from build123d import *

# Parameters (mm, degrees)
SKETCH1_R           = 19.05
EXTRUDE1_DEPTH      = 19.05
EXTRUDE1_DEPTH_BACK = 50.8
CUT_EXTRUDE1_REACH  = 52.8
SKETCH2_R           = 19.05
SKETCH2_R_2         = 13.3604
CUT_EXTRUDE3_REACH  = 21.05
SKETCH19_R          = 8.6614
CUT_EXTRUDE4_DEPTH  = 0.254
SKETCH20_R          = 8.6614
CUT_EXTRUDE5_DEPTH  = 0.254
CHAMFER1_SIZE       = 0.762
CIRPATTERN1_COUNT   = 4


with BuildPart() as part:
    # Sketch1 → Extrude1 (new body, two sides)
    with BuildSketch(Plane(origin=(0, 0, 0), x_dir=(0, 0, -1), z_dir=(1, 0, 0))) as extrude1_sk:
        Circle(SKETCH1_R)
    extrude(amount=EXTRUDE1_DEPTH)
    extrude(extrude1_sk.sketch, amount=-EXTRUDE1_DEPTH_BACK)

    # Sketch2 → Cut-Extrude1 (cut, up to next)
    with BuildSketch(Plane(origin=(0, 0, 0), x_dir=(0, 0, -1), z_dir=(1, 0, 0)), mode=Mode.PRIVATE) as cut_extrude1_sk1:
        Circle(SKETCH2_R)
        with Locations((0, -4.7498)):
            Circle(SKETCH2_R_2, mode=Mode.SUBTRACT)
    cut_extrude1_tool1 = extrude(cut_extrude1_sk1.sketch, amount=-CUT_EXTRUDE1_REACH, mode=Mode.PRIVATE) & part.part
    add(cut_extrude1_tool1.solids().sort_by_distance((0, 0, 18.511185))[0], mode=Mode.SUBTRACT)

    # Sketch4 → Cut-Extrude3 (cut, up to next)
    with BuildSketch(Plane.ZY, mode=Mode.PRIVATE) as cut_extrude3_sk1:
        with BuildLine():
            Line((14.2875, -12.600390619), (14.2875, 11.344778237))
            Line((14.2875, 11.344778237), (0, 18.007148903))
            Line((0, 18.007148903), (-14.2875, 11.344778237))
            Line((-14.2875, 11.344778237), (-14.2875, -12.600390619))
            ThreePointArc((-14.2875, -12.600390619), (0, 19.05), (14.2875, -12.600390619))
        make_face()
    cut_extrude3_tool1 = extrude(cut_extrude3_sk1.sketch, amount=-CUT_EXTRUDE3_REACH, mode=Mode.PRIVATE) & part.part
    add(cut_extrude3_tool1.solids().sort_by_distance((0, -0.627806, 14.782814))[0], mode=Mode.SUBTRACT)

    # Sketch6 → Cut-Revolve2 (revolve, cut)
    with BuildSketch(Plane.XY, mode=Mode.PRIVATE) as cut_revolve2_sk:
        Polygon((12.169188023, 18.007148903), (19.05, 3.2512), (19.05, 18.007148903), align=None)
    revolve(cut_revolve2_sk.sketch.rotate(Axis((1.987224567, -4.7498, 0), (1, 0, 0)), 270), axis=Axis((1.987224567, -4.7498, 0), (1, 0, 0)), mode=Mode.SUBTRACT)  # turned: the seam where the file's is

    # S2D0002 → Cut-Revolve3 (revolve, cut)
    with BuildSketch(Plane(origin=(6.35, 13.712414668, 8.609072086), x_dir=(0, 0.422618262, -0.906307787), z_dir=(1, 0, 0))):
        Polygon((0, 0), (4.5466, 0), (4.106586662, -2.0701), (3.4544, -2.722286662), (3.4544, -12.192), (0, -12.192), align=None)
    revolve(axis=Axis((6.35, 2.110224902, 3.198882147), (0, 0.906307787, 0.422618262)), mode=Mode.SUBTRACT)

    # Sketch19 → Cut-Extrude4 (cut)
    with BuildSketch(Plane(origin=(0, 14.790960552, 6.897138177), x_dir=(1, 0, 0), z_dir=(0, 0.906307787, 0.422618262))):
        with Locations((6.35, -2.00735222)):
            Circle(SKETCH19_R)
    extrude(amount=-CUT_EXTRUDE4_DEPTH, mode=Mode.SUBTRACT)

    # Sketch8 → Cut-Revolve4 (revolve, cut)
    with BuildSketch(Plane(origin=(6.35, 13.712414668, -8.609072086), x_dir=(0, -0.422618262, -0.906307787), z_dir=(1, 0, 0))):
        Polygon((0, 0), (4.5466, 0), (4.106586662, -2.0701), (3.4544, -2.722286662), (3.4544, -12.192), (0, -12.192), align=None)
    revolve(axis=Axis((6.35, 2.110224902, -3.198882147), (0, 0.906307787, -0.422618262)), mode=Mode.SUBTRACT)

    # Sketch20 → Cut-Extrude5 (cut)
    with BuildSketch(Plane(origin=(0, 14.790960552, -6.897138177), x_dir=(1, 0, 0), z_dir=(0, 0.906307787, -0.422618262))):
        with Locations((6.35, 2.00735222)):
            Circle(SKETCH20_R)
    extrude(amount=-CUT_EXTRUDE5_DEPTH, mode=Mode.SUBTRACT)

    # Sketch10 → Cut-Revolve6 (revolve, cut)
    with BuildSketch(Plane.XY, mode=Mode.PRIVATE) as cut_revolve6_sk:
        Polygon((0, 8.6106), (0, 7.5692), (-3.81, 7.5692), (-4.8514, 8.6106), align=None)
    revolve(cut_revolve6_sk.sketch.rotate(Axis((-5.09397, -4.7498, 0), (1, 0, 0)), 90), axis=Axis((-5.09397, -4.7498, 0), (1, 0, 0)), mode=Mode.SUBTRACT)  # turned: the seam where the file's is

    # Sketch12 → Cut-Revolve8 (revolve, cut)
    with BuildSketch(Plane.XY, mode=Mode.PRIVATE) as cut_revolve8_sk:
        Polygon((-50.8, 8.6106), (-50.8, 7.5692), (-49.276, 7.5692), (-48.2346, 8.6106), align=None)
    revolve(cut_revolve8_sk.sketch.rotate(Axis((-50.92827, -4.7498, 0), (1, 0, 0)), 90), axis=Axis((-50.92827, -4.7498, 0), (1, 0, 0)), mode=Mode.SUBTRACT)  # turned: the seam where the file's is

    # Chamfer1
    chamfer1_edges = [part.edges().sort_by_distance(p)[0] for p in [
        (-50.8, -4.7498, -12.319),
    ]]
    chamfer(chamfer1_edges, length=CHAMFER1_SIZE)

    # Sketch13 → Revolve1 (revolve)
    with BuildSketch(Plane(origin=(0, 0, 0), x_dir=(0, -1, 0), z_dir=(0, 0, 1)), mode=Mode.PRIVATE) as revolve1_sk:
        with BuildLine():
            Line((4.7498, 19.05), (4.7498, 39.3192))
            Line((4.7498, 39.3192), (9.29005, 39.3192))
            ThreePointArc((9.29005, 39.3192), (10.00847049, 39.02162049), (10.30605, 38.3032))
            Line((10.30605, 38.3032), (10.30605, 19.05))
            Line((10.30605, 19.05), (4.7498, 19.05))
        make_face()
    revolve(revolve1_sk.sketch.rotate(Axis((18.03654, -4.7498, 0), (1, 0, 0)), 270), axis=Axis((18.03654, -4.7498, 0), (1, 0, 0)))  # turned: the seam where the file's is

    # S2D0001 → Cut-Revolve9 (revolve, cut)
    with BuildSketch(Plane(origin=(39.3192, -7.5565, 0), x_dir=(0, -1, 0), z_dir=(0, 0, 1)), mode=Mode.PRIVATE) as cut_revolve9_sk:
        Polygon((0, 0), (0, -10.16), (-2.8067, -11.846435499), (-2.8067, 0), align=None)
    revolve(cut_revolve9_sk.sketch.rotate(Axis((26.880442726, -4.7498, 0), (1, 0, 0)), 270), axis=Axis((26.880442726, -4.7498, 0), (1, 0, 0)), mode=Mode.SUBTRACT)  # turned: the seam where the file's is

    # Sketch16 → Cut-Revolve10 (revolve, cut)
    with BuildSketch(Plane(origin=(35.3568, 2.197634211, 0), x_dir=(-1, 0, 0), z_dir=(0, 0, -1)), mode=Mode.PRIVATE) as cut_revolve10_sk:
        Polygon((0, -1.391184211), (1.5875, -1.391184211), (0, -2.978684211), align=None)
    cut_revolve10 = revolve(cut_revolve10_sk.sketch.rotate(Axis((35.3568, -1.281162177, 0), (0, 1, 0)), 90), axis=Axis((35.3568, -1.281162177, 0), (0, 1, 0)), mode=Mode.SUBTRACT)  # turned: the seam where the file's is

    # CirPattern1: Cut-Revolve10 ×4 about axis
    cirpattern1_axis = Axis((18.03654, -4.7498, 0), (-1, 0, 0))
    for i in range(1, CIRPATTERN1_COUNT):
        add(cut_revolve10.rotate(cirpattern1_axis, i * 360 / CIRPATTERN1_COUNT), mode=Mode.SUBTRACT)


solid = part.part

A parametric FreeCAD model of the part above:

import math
import FreeCAD as App
import Part
import Sketcher
Q = App.Units.Quantity


def edges_at(feature, points):
    """Names of the edges that pass closest to the given points."""
    edges = feature.Shape.Edges
    near = lambda p: min(range(len(edges)), key=lambda i: edges[i].distToShape(Part.Vertex(*p))[0])
    return sorted({f"Edge{near(p) + 1}" for p in points})

doc = App.newDocument("Part")
body = doc.addObject("PartDesign::Body", "Body")

# Sketch on YZ plane
sketch1 = doc.addObject("Sketcher::SketchObject", "Sketch")
body.addObject(sketch1)
sketch1.AttachmentSupport = (doc.YZ_Plane, [""])
sketch1.MapMode = "FlatFace"
sketch1.addGeometry(Part.Circle(App.Vector(0, 0, 0), App.Vector(0, 0, 1), 19), False)
sketch1.addConstraint(Sketcher.Constraint("Coincident", 0, 3, -1, 1))
sketch1.addConstraint(Sketcher.Constraint("Diameter", 0, Q("1.5 in")))
pad1 = doc.addObject("PartDesign::Pad", "Pad")
body.addObject(pad1)
pad1.Profile = sketch1
pad1.Type = "TwoLengths"
pad1.Length = Q("0.75 in")
pad1.Length2 = Q("2 in")

# Sketch on YZ plane
sketch2 = doc.addObject("Sketcher::SketchObject", "Sketch001")
body.addObject(sketch2)
sketch2.AttachmentSupport = (doc.YZ_Plane, [""])
sketch2.MapMode = "FlatFace"
sketch2.addGeometry(Part.Circle(App.Vector(0, 0, 0), App.Vector(0, 0, 1), 19), False)
sketch2.addGeometry(Part.Circle(App.Vector(-5, 0, 0), App.Vector(0, 0, 1), 13), False)
sketch2.addConstraint(Sketcher.Constraint("Coincident", 0, 3, -1, 1))
sketch2.addConstraint(Sketcher.Constraint("PointOnObject", 1, 3, -1))
sketch2.addConstraint(Sketcher.Constraint("Diameter", 0, Q("1.5 in")))
sketch2.addConstraint(Sketcher.Constraint("Diameter", 1, Q("1.052 in")))
sketch2.addConstraint(Sketcher.Constraint("DistanceX", 1, 3, -1, 1, Q("0.187 in")))
pocket1 = doc.addObject("PartDesign::Pocket", "Pocket")
body.addObject(pocket1)
pocket1.Profile = sketch2
pocket1.Type = "UpToFirst"

# Sketch on YZ plane
sketch3 = doc.addObject("Sketcher::SketchObject", "Sketch002")
body.addObject(sketch3)
sketch3.AttachmentSupport = (doc.YZ_Plane, [""])
sketch3.MapMode = "FlatFace"
sketch3.addGeometry(Part.LineSegment(App.Vector(11, 14, 0), App.Vector(-13, 14, 0)), False)
sketch3.addGeometry(Part.ArcOfCircle(Part.Circle(App.Vector(0, 0, 0), App.Vector(0, 0, 1), 19), math.radians(-131), math.radians(131)), False)
sketch3.addGeometry(Part.LineSegment(App.Vector(-13, -14, 0), App.Vector(11, -14, 0)), False)
sketch3.addGeometry(Part.LineSegment(App.Vector(11, -14, 0), App.Vector(18, 0, 0)), False)
sketch3.addGeometry(Part.LineSegment(App.Vector(18, 0, 0), App.Vector(11, 14, 0)), False)
sketch3.addConstraint(Sketcher.Constraint("Coincident", 0, 2, 1, 2))
sketch3.addConstraint(Sketcher.Constraint("Coincident", 1, 1, 2, 1))
sketch3.addConstraint(Sketcher.Constraint("Coincident", 2, 2, 3, 1))
sketch3.addConstraint(Sketcher.Constraint("Coincident", 3, 2, 4, 1))
sketch3.addConstraint(Sketcher.Constraint("Coincident", 4, 2, 0, 1))
sketch3.addConstraint(Sketcher.Constraint("Horizontal", 0))
sketch3.addConstraint(Sketcher.Constraint("Horizontal", 2))
sketch3.addConstraint(Sketcher.Constraint("Coincident", 1, 3, -1, 1))
sketch3.addConstraint(Sketcher.Constraint("Symmetric", 2, 2, 4, 2, -1))
sketch3.addConstraint(Sketcher.Constraint("PointOnObject", 3, 2, -1))
sketch3.addConstraint(Sketcher.Constraint("Radius", 1, Q("0.75 in")))
sketch3.addConstraint(Sketcher.Constraint("Angle", 3, Q("65 deg")))
sketch3.addConstraint(Sketcher.Constraint("DistanceY", -1, 1, 0, 2, Q("0.5625 in")))
sketch3.addConstraint(Sketcher.Constraint("DistanceX", 0, 2, 0, 1, Q("23.945169 mm")))
pocket2 = doc.addObject("PartDesign::Pocket", "Pocket001")
body.addObject(pocket2)
pocket2.Profile = sketch3
pocket2.Type = "UpToFirst"
pocket2.Reversed = True

# Sketch on XY plane
sketch4 = doc.addObject("Sketcher::SketchObject", "Sketch003")
body.addObject(sketch4)
sketch4.AttachmentSupport = (doc.XY_Plane, [""])
sketch4.MapMode = "FlatFace"
sketch4.addGeometry(Part.LineSegment(App.Vector(12, 18, 0), App.Vector(19, 3, 0)), False)
sketch4.addGeometry(Part.LineSegment(App.Vector(19, 3, 0), App.Vector(19, 18, 0)), False)
sketch4.addGeometry(Part.LineSegment(App.Vector(19, 18, 0), App.Vector(12, 18, 0)), False)
sketch4.addGeometry(Part.LineSegment(App.Vector(12, -5, 0), App.Vector(19, -5, 0)), True)  # axis
sketch4.addConstraint(Sketcher.Constraint("Coincident", 0, 2, 1, 1))
sketch4.addConstraint(Sketcher.Constraint("Coincident", 1, 2, 2, 1))
sketch4.addConstraint(Sketcher.Constraint("Coincident", 2, 2, 0, 1))
sketch4.addConstraint(Sketcher.Constraint("Vertical", 1))
sketch4.addConstraint(Sketcher.Constraint("Horizontal", 2))
sketch4.addConstraint(Sketcher.Constraint("Horizontal", 3))
sketch4.addConstraint(Sketcher.Constraint("Vertical", 2, 2, 3, 1))
sketch4.addConstraint(Sketcher.Constraint("Vertical", 1, 2, 3, 2))
sketch4.addConstraint(Sketcher.Constraint("Angle", 0, Q("-65 deg")))
sketch4.addConstraint(Sketcher.Constraint("DistanceX", -1, 1, 0, 2, Q("0.75 in")))
sketch4.addConstraint(Sketcher.Constraint("DistanceY", -1, 1, 0, 2, Q("0.128 in")))
sketch4.addConstraint(Sketcher.Constraint("DistanceY", 3, 1, -1, 1, Q("0.187 in")))
sketch4.addConstraint(Sketcher.Constraint("DistanceX", 2, 2, 2, 1, Q("6.880812 mm")))
groove = doc.addObject("PartDesign::Groove", "Groove")
body.addObject(groove)
groove.Profile = sketch4
groove.ReferenceAxis = (sketch4, ["Axis0"])
groove.Angle = 360

# Sketch on YZ plane
sketch5 = doc.addObject("Sketcher::SketchObject", "Sketch004")
body.addObject(sketch5)
sketch5.AttachmentSupport = (doc.YZ_Plane, [""])
sketch5.MapMode = "FlatFace"
sketch5.AttachmentOffset = App.Placement(App.Vector(0, 0, 0.25 * 25.4), App.Rotation())
sketch5.addGeometry(Part.LineSegment(App.Vector(15.6, 4.5, 0), App.Vector(13.7, 8.6, 0)), False)
sketch5.addGeometry(Part.LineSegment(App.Vector(13.7, 8.6, 0), App.Vector(2.7, 3.5, 0)), False)
sketch5.addGeometry(Part.LineSegment(App.Vector(2.7, 3.5, 0), App.Vector(4.1, 0.3, 0)), False)
sketch5.addGeometry(Part.LineSegment(App.Vector(4.1, 0.3, 0), App.Vector(12.7, 4.3, 0)), False)
sketch5.addGeometry(Part.LineSegment(App.Vector(12.7, 4.3, 0), App.Vector(13.6, 4, 0)), False)
sketch5.addGeometry(Part.LineSegment(App.Vector(13.6, 4, 0), App.Vector(15.6, 4.5, 0)), False)
sketch5.addGeometry(Part.LineSegment(App.Vector(2.7, 3.5, 0), App.Vector(13.7, 8.6, 0)), True)  # axis
sketch5.addConstraint(Sketcher.Constraint("Coincident", 0, 2, 1, 1))
sketch5.addConstraint(Sketcher.Constraint("Coincident", 1, 2, 2, 1))
sketch5.addConstraint(Sketcher.Constraint("Coincident", 2, 2, 3, 1))
sketch5.addConstraint(Sketcher.Constraint("Coincident", 3, 2, 4, 1))
sketch5.addConstraint(Sketcher.Constraint("Coincident", 4, 2, 5, 1))
sketch5.addConstraint(Sketcher.Constraint("Coincident", 5, 2, 0, 1))
sketch5.addConstraint(Sketcher.Constraint("Coincident", 6, 1, 1, 2))
sketch5.addConstraint(Sketcher.Constraint("Coincident", 6, 2, 0, 2))
sketch5.addConstraint(Sketcher.Constraint("Perpendicular", 0, 1))
sketch5.addConstraint(Sketcher.Constraint("Perpendicular", 1, 2))
sketch5.addConstraint(Sketcher.Constraint("Perpendicular", 2, 3))
sketch5.addConstraint(Sketcher.Constraint("Angle", 0, Q("115 deg")))
sketch5.addConstraint(Sketcher.Constraint("Angle", 4, Q("-20 deg")))
sketch5.addConstraint(Sketcher.Constraint("Angle", 5, Q("13 deg")))
sketch5.addConstraint(Sketcher.Constraint("Distance", 1, Q("0.48 in")))
sketch5.addConstraint(Sketcher.Constraint("Distance", 0, Q("0.179 in")))
sketch5.addConstraint(Sketcher.Constraint("Distance", 2, Q("0.136 in")))
sketch5.addConstraint(Sketcher.Constraint("DistanceX", -1, 1, 3, 2, Q("0.5001999 in")))
sketch5.addConstraint(Sketcher.Constraint("Distance", 4, Q("0.922331 mm")))
sketch5.addConstraint(Sketcher.Constraint("DistanceY", -1, 1, 1, 2, Q("3.45651 mm")))
groove2 = doc.addObject("PartDesign::Groove", "Groove001")
body.addObject(groove2)
groove2.Profile = sketch5
groove2.ReferenceAxis = (sketch5, ["Axis0"])
groove2.Angle = 360

# Sketch on an angled plane
sketch6 = doc.addObject("Sketcher::SketchObject", "Sketch005")
body.addObject(sketch6)
sketch6.Placement = App.Placement(App.Vector(0, 14.790961, 6.897138), App.Rotation(App.Vector(1, 0, 0), App.Vector(0, 0.422618262, -0.906307787), App.Vector(0, 0.906307787, 0.422618262), "ZXY"))
sketch6.addGeometry(Part.Circle(App.Vector(6, -2, 0), App.Vector(0, 0, 1), 9), False)
sketch6.addConstraint(Sketcher.Constraint("Diameter", 0, Q("0.682 in")))
sketch6.addConstraint(Sketcher.Constraint("DistanceX", -1, 1, 0, 3, Q("0.25 in")))
sketch6.addConstraint(Sketcher.Constraint("DistanceY", 0, 3, -1, 1, Q("2.007352 mm")))
pocket3 = doc.addObject("PartDesign::Pocket", "Pocket002")
body.addObject(pocket3)
pocket3.Profile = sketch6
pocket3.Length = Q("0.01 in")

# Sketch on YZ plane
sketch7 = doc.addObject("Sketcher::SketchObject", "Sketch006")
body.addObject(sketch7)
sketch7.AttachmentSupport = (doc.YZ_Plane, [""])
sketch7.MapMode = "FlatFace"
sketch7.AttachmentOffset = App.Placement(App.Vector(0, 0, 0.25 * 25.4), App.Rotation())
sketch7.addGeometry(Part.LineSegment(App.Vector(11.8, -12.7, 0), App.Vector(13.7, -8.6, 0)), False)
sketch7.addGeometry(Part.LineSegment(App.Vector(13.7, -8.6, 0), App.Vector(2.7, -3.5, 0)), False)
sketch7.addGeometry(Part.LineSegment(App.Vector(2.7, -3.5, 0), App.Vector(1.2, -6.6, 0)), False)
sketch7.addGeometry(Part.LineSegment(App.Vector(1.2, -6.6, 0), App.Vector(9.8, -10.6, 0)), False)
sketch7.addGeometry(Part.LineSegment(App.Vector(9.8, -10.6, 0), App.Vector(10.1, -11.5, 0)), False)
sketch7.addGeometry(Part.LineSegment(App.Vector(10.1, -11.5, 0), App.Vector(11.8, -12.7, 0)), False)
sketch7.addGeometry(Part.LineSegment(App.Vector(2.7, -3.5, 0), App.Vector(13.7, -8.6, 0)), True)  # axis
sketch7.addConstraint(Sketcher.Constraint("Coincident", 0, 2, 1, 1))
sketch7.addConstraint(Sketcher.Constraint("Coincident", 1, 2, 2, 1))
sketch7.addConstraint(Sketcher.Constraint("Coincident", 2, 2, 3, 1))
sketch7.addConstraint(Sketcher.Constraint("Coincident", 3, 2, 4, 1))
sketch7.addConstraint(Sketcher.Constraint("Coincident", 4, 2, 5, 1))
sketch7.addConstraint(Sketcher.Constraint("Coincident", 5, 2, 0, 1))
sketch7.addConstraint(Sketcher.Constraint("Coincident", 6, 1, 1, 2))
sketch7.addConstraint(Sketcher.Constraint("Coincident", 6, 2, 0, 2))
sketch7.addConstraint(Sketcher.Constraint("Perpendicular", 0, 1))
sketch7.addConstraint(Sketcher.Constraint("Perpendicular", 1, 2))
sketch7.addConstraint(Sketcher.Constraint("Perpendicular", 2, 3))
sketch7.addConstraint(Sketcher.Constraint("Angle", 0, Q("65 deg")))
sketch7.addConstraint(Sketcher.Constraint("Angle", 4, Q("-70 deg")))
sketch7.addConstraint(Sketcher.Constraint("Angle", 5, Q("-37 deg")))
sketch7.addConstraint(Sketcher.Constraint("Distance", 1, Q("0.48 in")))
sketch7.addConstraint(Sketcher.Constraint("Distance", 0, Q("0.179 in")))
sketch7.addConstraint(Sketcher.Constraint("Distance", 2, Q("0.136 in")))
sketch7.addConstraint(Sketcher.Constraint("Distance", 4, Q("0.922331 mm")))
sketch7.addConstraint(Sketcher.Constraint("DistanceX", -1, 1, 1, 2, Q("2.66271 mm")))
sketch7.addConstraint(Sketcher.Constraint("DistanceY", 1, 2, -1, 1, Q("3.45651 mm")))
groove3 = doc.addObject("PartDesign::Groove", "Groove002")
body.addObject(groove3)
groove3.Profile = sketch7
groove3.ReferenceAxis = (sketch7, ["Axis0"])
groove3.Angle = 360

# Sketch on an angled plane
sketch8 = doc.addObject("Sketcher::SketchObject", "Sketch007")
body.addObject(sketch8)
sketch8.Placement = App.Placement(App.Vector(0, 14.790961, -6.897138), App.Rotation(App.Vector(1, 0, 0), App.Vector(0, -0.422618262, -0.906307787), App.Vector(0, 0.906307787, -0.422618262), "ZXY"))
sketch8.addGeometry(Part.Circle(App.Vector(6, 2, 0), App.Vector(0, 0, 1), 9), False)
sketch8.addConstraint(Sketcher.Constraint("Diameter", 0, Q("0.682 in")))
sketch8.addConstraint(Sketcher.Constraint("DistanceX", -1, 1, 0, 3, Q("0.25 in")))
sketch8.addConstraint(Sketcher.Constraint("DistanceY", -1, 1, 0, 3, Q("2.007352 mm")))
pocket4 = doc.addObject("PartDesign::Pocket", "Pocket003")
body.addObject(pocket4)
pocket4.Profile = sketch8
pocket4.Length = Q("0.01 in")

# Sketch on XY plane
sketch9 = doc.addObject("Sketcher::SketchObject", "Sketch008")
body.addObject(sketch9)
sketch9.AttachmentSupport = (doc.XY_Plane, [""])
sketch9.MapMode = "FlatFace"
sketch9.addGeometry(Part.LineSegment(App.Vector(0, 7.6, 0), App.Vector(0, 8.6, 0)), False)
sketch9.addGeometry(Part.LineSegment(App.Vector(0, 8.6, 0), App.Vector(-4.9, 8.6, 0)), False)
sketch9.addGeometry(Part.LineSegment(App.Vector(-4.9, 8.6, 0), App.Vector(-3.8, 7.6, 0)), False)
sketch9.addGeometry(Part.LineSegment(App.Vector(-3.8, 7.6, 0), App.Vector(0, 7.6, 0)), False)
sketch9.addGeometry(Part.LineSegment(App.Vector(-4.9, -4.7, 0), App.Vector(0, -4.7, 0)), True)  # axis
sketch9.addConstraint(Sketcher.Constraint("Coincident", 0, 2, 1, 1))
sketch9.addConstraint(Sketcher.Constraint("Coincident", 1, 2, 2, 1))
sketch9.addConstraint(Sketcher.Constraint("Coincident", 2, 2, 3, 1))
sketch9.addConstraint(Sketcher.Constraint("Coincident", 3, 2, 0, 1))
sketch9.addConstraint(Sketcher.Constraint("Vertical", 0))
sketch9.addConstraint(Sketcher.Constraint("Horizontal", 1))
sketch9.addConstraint(Sketcher.Constraint("Horizontal", 3))
sketch9.addConstraint(Sketcher.Constraint("Horizontal", 4))
sketch9.addConstraint(Sketcher.Constraint("PointOnObject", 0, 2, -2))
sketch9.addConstraint(Sketcher.Constraint("PointOnObject", 4, 2, -2))
sketch9.addConstraint(Sketcher.Constraint("Vertical", 1, 2, 4, 1))
sketch9.addConstraint(Sketcher.Constraint("Angle", 2, Q("-45 deg")))
sketch9.addConstraint(Sketcher.Constraint("DistanceX", 3, 1, 3, 2, Q("0.15 in")))
sketch9.addConstraint(Sketcher.Constraint("DistanceX", 1, 2, 1, 1, Q("0.191 in")))
sketch9.addConstraint(Sketcher.Constraint("DistanceY", -1, 1, 0, 2, Q("0.339 in")))
sketch9.addConstraint(Sketcher.Constraint("DistanceY", 4, 1, -1, 1, Q("0.187 in")))
groove4 = doc.addObject("PartDesign::Groove", "Groove003")
body.addObject(groove4)
groove4.Profile = sketch9
groove4.ReferenceAxis = (sketch9, ["Axis0"])
groove4.Angle = 360

# Sketch on XY plane
sketch10 = doc.addObject("Sketcher::SketchObject", "Sketch009")
body.addObject(sketch10)
sketch10.AttachmentSupport = (doc.XY_Plane, [""])
sketch10.MapMode = "FlatFace"
sketch10.addGeometry(Part.LineSegment(App.Vector(-50.8, 8.6, 0), App.Vector(-50.8, 7.6, 0)), False)
sketch10.addGeometry(Part.LineSegment(App.Vector(-50.8, 7.6, 0), App.Vector(-49.3, 7.6, 0)), False)
sketch10.addGeometry(Part.LineSegment(App.Vector(-49.3, 7.6, 0), App.Vector(-48.2, 8.6, 0)), False)
sketch10.addGeometry(Part.LineSegment(App.Vector(-48.2, 8.6, 0), App.Vector(-50.8, 8.6, 0)), False)
sketch10.addGeometry(Part.LineSegment(App.Vector(-50.8, -4.7, 0), App.Vector(-48.2, -4.7, 0)), True)  # axis
sketch10.addConstraint(Sketcher.Constraint("Coincident", 0, 2, 1, 1))
sketch10.addConstraint(Sketcher.Constraint("Coincident", 1, 2, 2, 1))
sketch10.addConstraint(Sketcher.Constraint("Coincident", 2, 2, 3, 1))
sketch10.addConstraint(Sketcher.Constraint("Coincident", 3, 2, 0, 1))
sketch10.addConstraint(Sketcher.Constraint("Vertical", 0))
sketch10.addConstraint(Sketcher.Constraint("Horizontal", 1))
sketch10.addConstraint(Sketcher.Constraint("Horizontal", 3))
sketch10.addConstraint(Sketcher.Constraint("Horizontal", 4))
sketch10.addConstraint(Sketcher.Constraint("Vertical", 3, 2, 4, 1))
sketch10.addConstraint(Sketcher.Constraint("Vertical", 2, 2, 4, 2))
sketch10.addConstraint(Sketcher.Constraint("DistanceX", 0, 2, -1, 1, Q("2 in")))
sketch10.addConstraint(Sketcher.Constraint("Angle", 2, Q("45 deg")))
sketch10.addConstraint(Sketcher.Constraint("DistanceX", 1, 1, 1, 2, Q("0.06 in")))
sketch10.addConstraint(Sketcher.Constraint("DistanceX", 3, 2, 3, 1, Q("0.101 in")))
sketch10.addConstraint(Sketcher.Constraint("DistanceY", -1, 1, 0, 2, Q("0.298 in")))
sketch10.addConstraint(Sketcher.Constraint("DistanceY", 4, 1, -1, 1, Q("0.187 in")))
groove5 = doc.addObject("PartDesign::Groove", "Groove004")
body.addObject(groove5)
groove5.Profile = sketch10
groove5.ReferenceAxis = (sketch10, ["Axis0"])
groove5.Angle = 360
doc.recompute()

chamfer = doc.addObject("PartDesign::Chamfer", "Chamfer")
body.addObject(chamfer)
chamfer.Base = (groove5, edges_at(groove5, [(-50.8, -4.75, -12.319)]))
chamfer.Size = Q("0.03 in")

# Sketch on XY plane
sketch11 = doc.addObject("Sketcher::SketchObject", "Sketch010")
body.addObject(sketch11)
sketch11.AttachmentSupport = (doc.XY_Plane, [""])
sketch11.MapMode = "FlatFace"
sketch11.addGeometry(Part.LineSegment(App.Vector(39.3, -4.7, 0), App.Vector(19.1, -4.7, 0)), False)
sketch11.addGeometry(Part.LineSegment(App.Vector(19.1, -4.7, 0), App.Vector(19.1, -10.3, 0)), False)
sketch11.addGeometry(Part.LineSegment(App.Vector(19.1, -10.3, 0), App.Vector(38.3, -10.3, 0)), False)
sketch11.addGeometry(Part.ArcOfCircle(Part.Circle(App.Vector(38.3, -9.3, 0), App.Vector(0, 0, 1), 1), math.radians(-90), math.radians(0)), False)
sketch11.addGeometry(Part.LineSegment(App.Vector(39.3, -9.3, 0), App.Vector(39.3, -4.7, 0)), False)
sketch11.addGeometry(Part.LineSegment(App.Vector(19.1, -4.7, 0), App.Vector(39.3, -4.7, 0)), True)  # axis
sketch11.addConstraint(Sketcher.Constraint("Coincident", 0, 2, 1, 1))
sketch11.addConstraint(Sketcher.Constraint("Coincident", 1, 2, 2, 1))
sketch11.addConstraint(Sketcher.Constraint("Tangent", 2, 2, 3, 1))
sketch11.addConstraint(Sketcher.Constraint("Tangent", 3, 2, 4, 1))
sketch11.addConstraint(Sketcher.Constraint("Coincident", 4, 2, 0, 1))
sketch11.addConstraint(Sketcher.Constraint("Horizontal", 0))
sketch11.addConstraint(Sketcher.Constraint("Vertical", 1))
sketch11.addConstraint(Sketcher.Constraint("Horizontal", 2))
sketch11.addConstraint(Sketcher.Constraint("Vertical", 4))
sketch11.addConstraint(Sketcher.Constraint("Horizontal", 5))
sketch11.addConstraint(Sketcher.Constraint("Coincident", 5, 1, 0, 2))
sketch11.addConstraint(Sketcher.Constraint("Vertical", 3, 2, 5, 2))
sketch11.addConstraint(Sketcher.Constraint("Radius", 3, Q("0.04 in")))
sketch11.addConstraint(Sketcher.Constraint("DistanceX", 0, 2, 0, 1, Q("0.798 in")))
sketch11.addConstraint(Sketcher.Constraint("DistanceY", 1, 2, 1, 1, Q("0.21875 in")))
sketch11.addConstraint(Sketcher.Constraint("DistanceX", -1, 1, 0, 2, Q("0.75 in")))
sketch11.addConstraint(Sketcher.Constraint("DistanceY", 0, 2, -1, 1, Q("0.187 in")))
revolution = doc.addObject("PartDesign::Revolution", "Revolution")
body.addObject(revolution)
revolution.Profile = sketch11
revolution.ReferenceAxis = (sketch11, ["Axis0"])
revolution.Angle = 360

# Sketch on XY plane
sketch12 = doc.addObject("Sketcher::SketchObject", "Sketch011")
body.addObject(sketch12)
sketch12.AttachmentSupport = (doc.XY_Plane, [""])
sketch12.MapMode = "FlatFace"
sketch12.addGeometry(Part.LineSegment(App.Vector(29.2, -7.6, 0), App.Vector(39.3, -7.6, 0)), False)
sketch12.addGeometry(Part.LineSegment(App.Vector(39.3, -7.6, 0), App.Vector(39.3, -4.7, 0)), False)
sketch12.addGeometry(Part.LineSegment(App.Vector(39.3, -4.7, 0), App.Vector(27.5, -4.7, 0)), False)
sketch12.addGeometry(Part.LineSegment(App.Vector(27.5, -4.7, 0), App.Vector(29.2, -7.6, 0)), False)
sketch12.addGeometry(Part.LineSegment(App.Vector(27.5, -4.7, 0), App.Vector(39.3, -4.7, 0)), True)  # axis
sketch12.addConstraint(Sketcher.Constraint("Coincident", 0, 2, 1, 1))
sketch12.addConstraint(Sketcher.Constraint("Coincident", 1, 2, 2, 1))
sketch12.addConstraint(Sketcher.Constraint("Coincident", 2, 2, 3, 1))
sketch12.addConstraint(Sketcher.Constraint("Coincident", 3, 2, 0, 1))
sketch12.addConstraint(Sketcher.Constraint("Horizontal", 0))
sketch12.addConstraint(Sketcher.Constraint("Vertical", 1))
sketch12.addConstraint(Sketcher.Constraint("Horizontal", 2))
sketch12.addConstraint(Sketcher.Constraint("Horizontal", 4))
sketch12.addConstraint(Sketcher.Constraint("Coincident", 4, 1, 2, 2))
sketch12.addConstraint(Sketcher.Constraint("Vertical", 0, 2, 4, 2))
sketch12.addConstraint(Sketcher.Constraint("DistanceX", 0, 1, 0, 2, Q("0.4 in")))
sketch12.addConstraint(Sketcher.Constraint("Angle", 3, Q("-59 deg")))
sketch12.addConstraint(Sketcher.Constraint("DistanceY", 1, 1, 1, 2, Q("0.1105 in")))
sketch12.addConstraint(Sketcher.Constraint("DistanceX", -1, 1, 0, 2, Q("1.548 in")))
sketch12.addConstraint(Sketcher.Constraint("DistanceY", 1, 2, -1, 1, Q("0.187 in")))
groove6 = doc.addObject("PartDesign::Groove", "Groove005")
body.addObject(groove6)
groove6.Profile = sketch12
groove6.ReferenceAxis = (sketch12, ["Axis0"])
groove6.Angle = 360

# Sketch on XY plane
sketch13 = doc.addObject("Sketcher::SketchObject", "Sketch012")
body.addObject(sketch13)
sketch13.AttachmentSupport = (doc.XY_Plane, [""])
sketch13.MapMode = "FlatFace"
sketch13.addGeometry(Part.LineSegment(App.Vector(33.8, 0.8, 0), App.Vector(35.4, 0.8, 0)), False)
sketch13.addGeometry(Part.LineSegment(App.Vector(35.4, 0.8, 0), App.Vector(35.4, -0.8, 0)), False)
sketch13.addGeometry(Part.LineSegment(App.Vector(35.4, -0.8, 0), App.Vector(33.8, 0.8, 0)), False)
sketch13.addGeometry(Part.LineSegment(App.Vector(35.4, -0.8, 0), App.Vector(35.4, 0.8, 0)), True)  # axis
sketch13.addConstraint(Sketcher.Constraint("Coincident", 0, 2, 1, 1))
sketch13.addConstraint(Sketcher.Constraint("Coincident", 1, 2, 2, 1))
sketch13.addConstraint(Sketcher.Constraint("Coincident", 2, 2, 0, 1))
sketch13.addConstraint(Sketcher.Constraint("Horizontal", 0))
sketch13.addConstraint(Sketcher.Constraint("Vertical", 1))
sketch13.addConstraint(Sketcher.Constraint("Vertical", 3))
sketch13.addConstraint(Sketcher.Constraint("Coincident", 3, 1, 1, 2))
sketch13.addConstraint(Sketcher.Constraint("Horizontal", 2, 2, 3, 2))
sketch13.addConstraint(Sketcher.Constraint("Equal", 0, 1))
sketch13.addConstraint(Sketcher.Constraint("DistanceX", 0, 1, 0, 2, Q("0.0625 in")))
sketch13.addConstraint(Sketcher.Constraint("DistanceX", -1, 1, 0, 2, Q("1.392 in")))
sketch13.addConstraint(Sketcher.Constraint("DistanceY", -1, 1, 0, 2, Q("0.80645 mm")))
groove7 = doc.addObject("PartDesign::Groove", "Groove006")
body.addObject(groove7)
groove7.Profile = sketch13
groove7.ReferenceAxis = (sketch13, ["Axis0"])
groove7.Angle = 360
doc.recompute()

datumline = doc.addObject("PartDesign::Line", "DatumLine")
body.addObject(datumline)
datumline.Placement = App.Placement(App.Vector(0, -4.7498, 0), App.Rotation(App.Vector(0, 0, 1), App.Vector(-1, 0, 0)))
polarpattern = doc.addObject("PartDesign::PolarPattern", "PolarPattern")
body.addObject(polarpattern)
polarpattern.Originals = [groove7]
polarpattern.Axis = (datumline, [""])
polarpattern.Angle = 360
polarpattern.Occurrences = 4
body.Tip = polarpattern

doc.recompute()
